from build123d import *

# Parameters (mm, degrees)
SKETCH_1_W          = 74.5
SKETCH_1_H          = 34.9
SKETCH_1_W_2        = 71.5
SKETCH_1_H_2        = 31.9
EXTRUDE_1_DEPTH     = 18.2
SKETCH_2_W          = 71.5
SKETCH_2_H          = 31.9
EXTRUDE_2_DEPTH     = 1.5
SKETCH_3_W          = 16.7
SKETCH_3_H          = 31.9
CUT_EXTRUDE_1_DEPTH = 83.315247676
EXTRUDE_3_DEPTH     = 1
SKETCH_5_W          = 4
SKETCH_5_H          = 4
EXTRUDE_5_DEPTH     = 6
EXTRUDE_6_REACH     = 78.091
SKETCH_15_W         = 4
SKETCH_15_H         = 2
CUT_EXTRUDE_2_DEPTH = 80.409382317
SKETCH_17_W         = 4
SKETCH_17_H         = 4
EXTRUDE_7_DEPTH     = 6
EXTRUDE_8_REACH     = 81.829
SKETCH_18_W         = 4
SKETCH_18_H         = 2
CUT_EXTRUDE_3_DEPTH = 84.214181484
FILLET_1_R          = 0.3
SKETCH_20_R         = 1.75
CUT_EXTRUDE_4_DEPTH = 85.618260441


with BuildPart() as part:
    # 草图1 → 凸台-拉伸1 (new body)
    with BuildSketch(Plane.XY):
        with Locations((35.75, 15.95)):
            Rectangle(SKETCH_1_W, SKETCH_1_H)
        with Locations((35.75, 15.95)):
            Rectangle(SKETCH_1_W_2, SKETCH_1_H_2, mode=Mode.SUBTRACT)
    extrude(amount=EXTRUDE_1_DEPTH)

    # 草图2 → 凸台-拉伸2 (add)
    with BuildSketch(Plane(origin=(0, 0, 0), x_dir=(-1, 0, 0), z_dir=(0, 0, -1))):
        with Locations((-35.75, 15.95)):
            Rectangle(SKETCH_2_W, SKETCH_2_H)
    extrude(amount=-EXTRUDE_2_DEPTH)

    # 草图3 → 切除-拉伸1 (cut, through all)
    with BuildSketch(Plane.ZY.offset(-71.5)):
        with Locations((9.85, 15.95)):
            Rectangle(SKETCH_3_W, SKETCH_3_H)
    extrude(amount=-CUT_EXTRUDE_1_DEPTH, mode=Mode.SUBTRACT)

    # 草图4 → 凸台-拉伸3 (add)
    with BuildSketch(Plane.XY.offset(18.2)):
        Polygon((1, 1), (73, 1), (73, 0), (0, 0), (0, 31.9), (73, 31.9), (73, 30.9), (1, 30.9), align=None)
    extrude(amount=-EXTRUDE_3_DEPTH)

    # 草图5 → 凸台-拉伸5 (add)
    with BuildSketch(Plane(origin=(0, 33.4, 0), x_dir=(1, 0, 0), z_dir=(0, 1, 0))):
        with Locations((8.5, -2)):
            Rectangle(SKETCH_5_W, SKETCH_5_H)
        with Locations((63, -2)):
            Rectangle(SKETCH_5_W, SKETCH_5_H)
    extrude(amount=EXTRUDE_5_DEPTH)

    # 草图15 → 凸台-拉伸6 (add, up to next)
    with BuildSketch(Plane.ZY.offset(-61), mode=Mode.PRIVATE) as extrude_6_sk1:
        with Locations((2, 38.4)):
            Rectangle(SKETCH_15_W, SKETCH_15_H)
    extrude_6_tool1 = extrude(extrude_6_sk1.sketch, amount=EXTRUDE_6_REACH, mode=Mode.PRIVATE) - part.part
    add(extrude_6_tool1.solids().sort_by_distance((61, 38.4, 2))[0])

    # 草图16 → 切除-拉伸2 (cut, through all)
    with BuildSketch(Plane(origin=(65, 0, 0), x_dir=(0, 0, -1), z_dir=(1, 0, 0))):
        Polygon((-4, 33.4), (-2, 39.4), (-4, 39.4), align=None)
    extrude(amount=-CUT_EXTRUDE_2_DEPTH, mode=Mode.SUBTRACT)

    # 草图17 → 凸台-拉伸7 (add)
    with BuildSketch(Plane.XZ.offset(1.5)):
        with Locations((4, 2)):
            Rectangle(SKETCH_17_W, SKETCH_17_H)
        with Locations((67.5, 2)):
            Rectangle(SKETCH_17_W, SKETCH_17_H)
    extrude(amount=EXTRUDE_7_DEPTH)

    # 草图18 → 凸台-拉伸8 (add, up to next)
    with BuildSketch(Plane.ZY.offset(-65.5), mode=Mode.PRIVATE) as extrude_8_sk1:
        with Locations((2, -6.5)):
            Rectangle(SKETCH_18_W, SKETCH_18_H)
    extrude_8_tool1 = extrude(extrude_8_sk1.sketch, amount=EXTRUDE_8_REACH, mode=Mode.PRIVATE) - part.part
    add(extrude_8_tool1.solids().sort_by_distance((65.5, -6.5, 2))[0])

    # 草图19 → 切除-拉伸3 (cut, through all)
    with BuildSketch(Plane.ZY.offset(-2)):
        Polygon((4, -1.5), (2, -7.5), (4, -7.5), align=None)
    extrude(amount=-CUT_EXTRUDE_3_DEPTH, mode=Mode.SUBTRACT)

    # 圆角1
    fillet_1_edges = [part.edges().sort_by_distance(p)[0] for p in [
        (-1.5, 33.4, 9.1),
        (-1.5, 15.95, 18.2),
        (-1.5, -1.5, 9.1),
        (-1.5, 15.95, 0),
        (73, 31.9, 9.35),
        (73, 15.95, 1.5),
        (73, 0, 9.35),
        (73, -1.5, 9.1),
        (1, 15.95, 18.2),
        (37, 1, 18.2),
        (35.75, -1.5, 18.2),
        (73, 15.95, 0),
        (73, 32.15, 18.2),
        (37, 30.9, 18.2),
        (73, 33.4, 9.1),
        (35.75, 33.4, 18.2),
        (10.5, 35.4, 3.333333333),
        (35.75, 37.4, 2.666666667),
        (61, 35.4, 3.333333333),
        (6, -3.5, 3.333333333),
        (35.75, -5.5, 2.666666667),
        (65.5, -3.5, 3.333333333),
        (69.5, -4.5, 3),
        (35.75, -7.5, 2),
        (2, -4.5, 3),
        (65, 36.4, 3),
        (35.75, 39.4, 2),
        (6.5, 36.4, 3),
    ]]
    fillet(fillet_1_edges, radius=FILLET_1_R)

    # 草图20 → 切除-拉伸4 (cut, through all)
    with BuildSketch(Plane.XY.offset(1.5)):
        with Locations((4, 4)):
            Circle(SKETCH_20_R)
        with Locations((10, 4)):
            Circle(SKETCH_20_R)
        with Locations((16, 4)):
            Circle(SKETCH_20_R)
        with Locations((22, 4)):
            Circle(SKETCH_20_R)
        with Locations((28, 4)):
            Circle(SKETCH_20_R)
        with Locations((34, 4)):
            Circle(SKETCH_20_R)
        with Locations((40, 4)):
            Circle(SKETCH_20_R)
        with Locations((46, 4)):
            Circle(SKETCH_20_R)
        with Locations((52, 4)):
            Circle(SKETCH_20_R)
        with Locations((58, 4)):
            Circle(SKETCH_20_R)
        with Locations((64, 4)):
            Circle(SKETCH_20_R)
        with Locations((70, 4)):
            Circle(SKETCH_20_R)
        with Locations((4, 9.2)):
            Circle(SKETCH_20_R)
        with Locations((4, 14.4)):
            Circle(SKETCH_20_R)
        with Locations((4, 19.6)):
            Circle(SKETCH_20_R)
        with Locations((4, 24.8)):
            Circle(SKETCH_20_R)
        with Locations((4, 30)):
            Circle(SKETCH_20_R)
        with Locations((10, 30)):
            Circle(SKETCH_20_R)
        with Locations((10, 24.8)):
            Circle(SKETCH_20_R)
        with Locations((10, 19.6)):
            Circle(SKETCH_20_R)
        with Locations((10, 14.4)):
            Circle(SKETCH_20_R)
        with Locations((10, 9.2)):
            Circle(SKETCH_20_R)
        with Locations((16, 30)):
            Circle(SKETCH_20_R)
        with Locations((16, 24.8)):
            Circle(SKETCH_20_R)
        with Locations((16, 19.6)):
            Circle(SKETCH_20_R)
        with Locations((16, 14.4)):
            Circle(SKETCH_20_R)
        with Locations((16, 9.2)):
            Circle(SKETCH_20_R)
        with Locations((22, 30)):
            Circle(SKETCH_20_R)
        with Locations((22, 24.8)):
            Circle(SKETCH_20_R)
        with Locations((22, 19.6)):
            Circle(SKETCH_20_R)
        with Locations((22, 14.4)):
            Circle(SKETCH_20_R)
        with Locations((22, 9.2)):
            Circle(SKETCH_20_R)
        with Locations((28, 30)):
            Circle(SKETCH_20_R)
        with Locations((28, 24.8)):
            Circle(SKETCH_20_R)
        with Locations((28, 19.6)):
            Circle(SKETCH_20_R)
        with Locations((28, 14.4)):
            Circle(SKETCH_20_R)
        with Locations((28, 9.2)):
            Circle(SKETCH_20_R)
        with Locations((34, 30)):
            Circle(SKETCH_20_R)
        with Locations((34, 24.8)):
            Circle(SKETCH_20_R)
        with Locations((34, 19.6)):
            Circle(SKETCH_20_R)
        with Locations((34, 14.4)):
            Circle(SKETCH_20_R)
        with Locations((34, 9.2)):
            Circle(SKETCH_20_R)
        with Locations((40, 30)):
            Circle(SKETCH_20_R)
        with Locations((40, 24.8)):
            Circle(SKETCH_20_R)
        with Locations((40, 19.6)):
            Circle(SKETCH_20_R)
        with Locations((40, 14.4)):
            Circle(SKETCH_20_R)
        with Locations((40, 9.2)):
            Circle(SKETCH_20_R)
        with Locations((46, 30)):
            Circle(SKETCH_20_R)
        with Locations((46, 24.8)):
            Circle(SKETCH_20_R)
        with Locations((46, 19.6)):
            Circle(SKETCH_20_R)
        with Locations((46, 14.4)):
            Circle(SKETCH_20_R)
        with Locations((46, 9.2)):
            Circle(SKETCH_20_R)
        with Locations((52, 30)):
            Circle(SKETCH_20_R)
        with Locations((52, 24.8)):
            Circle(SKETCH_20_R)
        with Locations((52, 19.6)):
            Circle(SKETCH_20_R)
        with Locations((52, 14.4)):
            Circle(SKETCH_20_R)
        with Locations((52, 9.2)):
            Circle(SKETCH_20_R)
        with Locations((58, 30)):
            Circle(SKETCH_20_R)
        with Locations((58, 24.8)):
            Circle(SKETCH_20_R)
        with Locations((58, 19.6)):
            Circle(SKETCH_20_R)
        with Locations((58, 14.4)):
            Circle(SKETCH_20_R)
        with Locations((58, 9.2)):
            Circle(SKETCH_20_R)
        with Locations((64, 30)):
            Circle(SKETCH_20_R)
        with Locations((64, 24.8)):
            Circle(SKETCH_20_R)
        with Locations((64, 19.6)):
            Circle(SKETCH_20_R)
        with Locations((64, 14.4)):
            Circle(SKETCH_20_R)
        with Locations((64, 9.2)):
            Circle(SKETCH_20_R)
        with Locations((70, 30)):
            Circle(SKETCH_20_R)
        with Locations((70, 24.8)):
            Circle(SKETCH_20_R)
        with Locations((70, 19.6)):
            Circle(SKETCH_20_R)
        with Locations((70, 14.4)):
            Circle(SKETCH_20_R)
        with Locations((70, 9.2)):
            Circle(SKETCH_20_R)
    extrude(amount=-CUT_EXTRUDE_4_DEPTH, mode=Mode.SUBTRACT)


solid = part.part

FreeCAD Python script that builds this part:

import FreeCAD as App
import Part
import Sketcher
from FreeCAD import Vector


def edges_at(feature, points):
    """Names of the edges that pass closest to the given points."""
    edges = feature.Shape.Edges
    near = lambda p: min(range(len(edges)), key=lambda i: edges[i].distToShape(Part.Vertex(*p))[0])
    return sorted({f"Edge{near(p) + 1}" for p in points})


def add_polygon(sketch, points):
    """Adds a closed chain of lines whose ends are joined by coincident constraints."""
    first, n = sketch.GeometryCount, len(points)
    for a, b in zip(points, points[1:] + points[:1]):
        sketch.addGeometry(Part.LineSegment(App.Vector(*a, 0), App.Vector(*b, 0)), False)
    for i in range(n):
        sketch.addConstraint(Sketcher.Constraint("Coincident", first + i, 2, first + (i + 1) % n, 1))

doc = App.newDocument("Part")
body = doc.addObject("PartDesign::Body", "Body")

# Sketch on XY plane
sketch1 = doc.addObject("Sketcher::SketchObject", "Sketch")
body.addObject(sketch1)
sketch1.AttachmentSupport = (doc.XY_Plane, [""])
sketch1.MapMode = "FlatFace"
add_polygon(sketch1, [(-2, 33), (-2, -2), (73, -2), (73, 33)])  # lines 0-3
add_polygon(sketch1, [(72, 0), (0, 0), (0, 32), (72, 32)])  # lines 4-7
sketch1.addConstraint(Sketcher.Constraint("Vertical", 0))
sketch1.addConstraint(Sketcher.Constraint("Horizontal", 1))
sketch1.addConstraint(Sketcher.Constraint("Vertical", 2))
sketch1.addConstraint(Sketcher.Constraint("Horizontal", 3))
sketch1.addConstraint(Sketcher.Constraint("Horizontal", 4))
sketch1.addConstraint(Sketcher.Constraint("Vertical", 5))
sketch1.addConstraint(Sketcher.Constraint("Horizontal", 6))
sketch1.addConstraint(Sketcher.Constraint("Vertical", 7))
sketch1.addConstraint(Sketcher.Constraint("Coincident", 4, 2, -1, 1))
sketch1.addConstraint(Sketcher.Constraint("DistanceX", 1, 1, 1, 2, 74.5))
sketch1.addConstraint(Sketcher.Constraint("DistanceX", 4, 2, 4, 1, 71.5))
sketch1.addConstraint(Sketcher.Constraint("DistanceY", 0, 2, 0, 1, 34.9))
sketch1.addConstraint(Sketcher.Constraint("DistanceY", 5, 1, 5, 2, 31.9))
sketch1.addConstraint(Sketcher.Constraint("DistanceX", -1, 1, 1, 2, 73.0))
sketch1.addConstraint(Sketcher.Constraint("DistanceY", 0, 2, -1, 1, 1.5))
pad1 = doc.addObject("PartDesign::Pad", "Pad")
body.addObject(pad1)
pad1.Profile = sketch1
pad1.Length = 18.2

# Sketch on XY plane
sketch2 = doc.addObject("Sketcher::SketchObject", "Sketch001")
body.addObject(sketch2)
sketch2.AttachmentSupport = (doc.XY_Plane, [""])
sketch2.MapMode = "FlatFace"
add_polygon(sketch2, [(72, 32), (72, 0), (0, 0), (0, 32)])  # lines 0-3
sketch2.addConstraint(Sketcher.Constraint("Vertical", 0))
sketch2.addConstraint(Sketcher.Constraint("Horizontal", 1))
sketch2.addConstraint(Sketcher.Constraint("Vertical", 2))
sketch2.addConstraint(Sketcher.Constraint("Horizontal", 3))
sketch2.addConstraint(Sketcher.Constraint("Coincident", 1, 2, -1, 1))
sketch2.addConstraint(Sketcher.Constraint("DistanceX", 1, 2, 1, 1, 71.5))
sketch2.addConstraint(Sketcher.Constraint("DistanceY", 0, 2, 0, 1, 31.9))
pad2 = doc.addObject("PartDesign::Pad", "Pad001")
body.addObject(pad2)
pad2.Profile = sketch2
pad2.Length = 1.5

# Sketch on YZ plane
sketch3 = doc.addObject("Sketcher::SketchObject", "Sketch002")
body.addObject(sketch3)
sketch3.AttachmentSupport = (doc.YZ_Plane, [""])
sketch3.MapMode = "FlatFace"
sketch3.AttachmentOffset = App.Placement(Vector(0, 0, 71.5), App.Rotation())
add_polygon(sketch3, [(32, 2), (0, 2), (0, 18), (32, 18)])  # lines 0-3
sketch3.addConstraint(Sketcher.Constraint("Horizontal", 0))
sketch3.addConstraint(Sketcher.Constraint("Vertical", 1))
sketch3.addConstraint(Sketcher.Constraint("Horizontal", 2))
sketch3.addConstraint(Sketcher.Constraint("Vertical", 3))
sketch3.addConstraint(Sketcher.Constraint("PointOnObject", 0, 2, -2))
sketch3.addConstraint(Sketcher.Constraint("DistanceX", 0, 2, 0, 1, 31.9))
sketch3.addConstraint(Sketcher.Constraint("DistanceY", 1, 1, 1, 2, 16.7))
sketch3.addConstraint(Sketcher.Constraint("DistanceY", -1, 1, 0, 2, 1.5))
pocket1 = doc.addObject("PartDesign::Pocket", "Pocket")
body.addObject(pocket1)
pocket1.Profile = sketch3
pocket1.Type = "ThroughAll"
pocket1.Reversed = True

# Sketch on XY plane
sketch4 = doc.addObject("Sketcher::SketchObject", "Sketch003")
body.addObject(sketch4)
sketch4.AttachmentSupport = (doc.XY_Plane, [""])
sketch4.MapMode = "FlatFace"
sketch4.AttachmentOffset = App.Placement(Vector(0, 0, 18.2), App.Rotation())
add_polygon(sketch4, [(73, 1), (1, 1), (1, 30.9), (73, 30.9), (73, 31.9), (0, 31.9), (0, 0), (73, 0)])  # lines 0-7
sketch4.addConstraint(Sketcher.Constraint("Horizontal", 0))
sketch4.addConstraint(Sketcher.Constraint("Vertical", 1))
sketch4.addConstraint(Sketcher.Constraint("Horizontal", 2))
sketch4.addConstraint(Sketcher.Constraint("Vertical", 3))
sketch4.addConstraint(Sketcher.Constraint("Horizontal", 4))
sketch4.addConstraint(Sketcher.Constraint("Vertical", 5))
sketch4.addConstraint(Sketcher.Constraint("Horizontal", 6))
sketch4.addConstraint(Sketcher.Constraint("Vertical", 7))
sketch4.addConstraint(Sketcher.Constraint("Coincident", 5, 2, -1, 1))
sketch4.addConstraint(Sketcher.Constraint("Vertical", 3, 2, 6, 2))
sketch4.addConstraint(Sketcher.Constraint("Equal", 3, 7))
sketch4.addConstraint(Sketcher.Constraint("DistanceX", 0, 2, 0, 1, 72.0))
sketch4.addConstraint(Sketcher.Constraint("DistanceX", 4, 2, 4, 1, 73.0))
sketch4.addConstraint(Sketcher.Constraint("DistanceY", 3, 1, 3, 2, 1.0))
sketch4.addConstraint(Sketcher.Constraint("DistanceY", 1, 1, 1, 2, 29.9))
pad3 = doc.addObject("PartDesign::Pad", "Pad002")
body.addObject(pad3)
pad3.Profile = sketch4
pad3.Length = 1
pad3.Reversed = True

# Sketch on XZ plane
sketch5 = doc.addObject("Sketcher::SketchObject", "Sketch004")
body.addObject(sketch5)
sketch5.AttachmentSupport = (doc.XZ_Plane, [""])
sketch5.MapMode = "FlatFace"
sketch5.AttachmentOffset = App.Placement(Vector(0, 0, -33.4), App.Rotation())
add_polygon(sketch5, [(6.5, 0), (6.5, 4), (10.5, 4), (10.5, 0)])  # lines 0-3
add_polygon(sketch5, [(61, 0), (61, 4), (65, 4), (65, 0)])  # lines 4-7
sketch5.addConstraint(Sketcher.Constraint("Vertical", 0))
sketch5.addConstraint(Sketcher.Constraint("Horizontal", 1))
sketch5.addConstraint(Sketcher.Constraint("Vertical", 2))
sketch5.addConstraint(Sketcher.Constraint("Horizontal", 3))
sketch5.addConstraint(Sketcher.Constraint("Vertical", 4))
sketch5.addConstraint(Sketcher.Constraint("Horizontal", 5))
sketch5.addConstraint(Sketcher.Constraint("Vertical", 6))
sketch5.addConstraint(Sketcher.Constraint("Horizontal", 7))
sketch5.addConstraint(Sketcher.Constraint("PointOnObject", 2, 2, -1))
sketch5.addConstraint(Sketcher.Constraint("PointOnObject", 6, 2, -1))
sketch5.addConstraint(Sketcher.Constraint("Horizontal", 1, 2, 4, 2))
sketch5.addConstraint(Sketcher.Constraint("Equal", 3, 5))
sketch5.addConstraint(Sketcher.Constraint("Equal", 7, 0))
sketch5.addConstraint(Sketcher.Constraint("DistanceX", 1, 1, 1, 2, 4.0))
sketch5.addConstraint(Sketcher.Constraint("DistanceX", -1, 1, 4, 2, 61.0))
sketch5.addConstraint(Sketcher.Constraint("DistanceX", -1, 1, 0, 2, 6.5))
pad4 = doc.addObject("PartDesign::Pad", "Pad003")
body.addObject(pad4)
pad4.Profile = sketch5
pad4.Length = 6
pad4.Reversed = True

# Sketch on YZ plane
sketch6 = doc.addObject("Sketcher::SketchObject", "Sketch005")
body.addObject(sketch6)
sketch6.AttachmentSupport = (doc.YZ_Plane, [""])
sketch6.MapMode = "FlatFace"
sketch6.AttachmentOffset = App.Placement(Vector(0, 0, 61), App.Rotation())
add_polygon(sketch6, [(39.4, 0), (37.4, 0), (37.4, 4), (39.4, 4)])  # lines 0-3
sketch6.addConstraint(Sketcher.Constraint("Horizontal", 0))
sketch6.addConstraint(Sketcher.Constraint("Vertical", 1))
sketch6.addConstraint(Sketcher.Constraint("Horizontal", 2))
sketch6.addConstraint(Sketcher.Constraint("Vertical", 3))
sketch6.addConstraint(Sketcher.Constraint("PointOnObject", 0, 2, -1))
sketch6.addConstraint(Sketcher.Constraint("DistanceX", 0, 2, 0, 1, 2.0))
sketch6.addConstraint(Sketcher.Constraint("DistanceY", 1, 1, 1, 2, 4.0))
sketch6.addConstraint(Sketcher.Constraint("DistanceX", -1, 1, 0, 2, 37.4))
pad5 = doc.addObject("PartDesign::Pad", "Pad004")
body.addObject(pad5)
pad5.Profile = sketch6
pad5.Type = "UpToFirst"
pad5.Reversed = True

# Sketch on YZ plane
sketch7 = doc.addObject("Sketcher::SketchObject", "Sketch006")
body.addObject(sketch7)
sketch7.AttachmentSupport = (doc.YZ_Plane, [""])
sketch7.MapMode = "FlatFace"
sketch7.AttachmentOffset = App.Placement(Vector(0, 0, 65), App.Rotation())
add_polygon(sketch7, [(33.4, 4), (39.4, 2), (39.4, 4)])  # lines 0-2
sketch7.addConstraint(Sketcher.Constraint("Vertical", 1))
sketch7.addConstraint(Sketcher.Constraint("Horizontal", 2))
sketch7.addConstraint(Sketcher.Constraint("DistanceX", 2, 2, 2, 1, 6.0))
sketch7.addConstraint(Sketcher.Constraint("DistanceY", 1, 1, 1, 2, 2.0))
sketch7.addConstraint(Sketcher.Constraint("DistanceY", -1, 1, 0, 2, 2.0))
sketch7.addConstraint(Sketcher.Constraint("DistanceX", -1, 1, 0, 2, 39.4))
pocket2 = doc.addObject("PartDesign::Pocket", "Pocket001")
body.addObject(pocket2)
pocket2.Profile = sketch7
pocket2.Type = "ThroughAll"

# Sketch on XZ plane
sketch8 = doc.addObject("Sketcher::SketchObject", "Sketch007")
body.addObject(sketch8)
sketch8.AttachmentSupport = (doc.XZ_Plane, [""])
sketch8.MapMode = "FlatFace"
sketch8.AttachmentOffset = App.Placement(Vector(0, 0, 1.5), App.Rotation())
add_polygon(sketch8, [(2, 4), (2, 0), (6, 0), (6, 4)])  # lines 0-3
add_polygon(sketch8, [(65.5, 4), (65.5, 0), (69.5, 0), (69.5, 4)])  # lines 4-7
sketch8.addConstraint(Sketcher.Constraint("Vertical", 0))
sketch8.addConstraint(Sketcher.Constraint("Horizontal", 1))
sketch8.addConstraint(Sketcher.Constraint("Vertical", 2))
sketch8.addConstraint(Sketcher.Constraint("Horizontal", 3))
sketch8.addConstraint(Sketcher.Constraint("Vertical", 4))
sketch8.addConstraint(Sketcher.Constraint("Horizontal", 5))
sketch8.addConstraint(Sketcher.Constraint("Vertical", 6))
sketch8.addConstraint(Sketcher.Constraint("Horizontal", 7))
sketch8.addConstraint(Sketcher.Constraint("PointOnObject", 0, 2, -1))
sketch8.addConstraint(Sketcher.Constraint("PointOnObject", 4, 2, -1))
sketch8.addConstraint(Sketcher.Constraint("Horizontal", 3, 2, 6, 2))
sketch8.addConstraint(Sketcher.Constraint("Equal", 3, 5))
sketch8.addConstraint(Sketcher.Constraint("Equal", 7, 0))
sketch8.addConstraint(Sketcher.Constraint("DistanceX", 1, 1, 1, 2, 4.0))
sketch8.addConstraint(Sketcher.Constraint("DistanceX", -1, 1, 0, 2, 2.0))
sketch8.addConstraint(Sketcher.Constraint("DistanceX", -1, 1, 4, 2, 65.5))
pad6 = doc.addObject("PartDesign::Pad", "Pad005")
body.addObject(pad6)
pad6.Profile = sketch8
pad6.Length = 6

# Sketch on YZ plane
sketch9 = doc.addObject("Sketcher::SketchObject", "Sketch008")
body.addObject(sketch9)
sketch9.AttachmentSupport = (doc.YZ_Plane, [""])
sketch9.MapMode = "FlatFace"
sketch9.AttachmentOffset = App.Placement(Vector(0, 0, 65.5), App.Rotation())
add_polygon(sketch9, [(-5.5, 0), (-7.5, 0), (-7.5, 4), (-5.5, 4)])  # lines 0-3
sketch9.addConstraint(Sketcher.Constraint("Horizontal", 0))
sketch9.addConstraint(Sketcher.Constraint("Vertical", 1))
sketch9.addConstraint(Sketcher.Constraint("Horizontal", 2))
sketch9.addConstraint(Sketcher.Constraint("Vertical", 3))
sketch9.addConstraint(Sketcher.Constraint("PointOnObject", 0, 2, -1))
sketch9.addConstraint(Sketcher.Constraint("DistanceX", 0, 2, 0, 1, 2.0))
sketch9.addConstraint(Sketcher.Constraint("DistanceY", 1, 1, 1, 2, 4.0))
sketch9.addConstraint(Sketcher.Constraint("DistanceX", 0, 2, -1, 1, 7.5))
pad7 = doc.addObject("PartDesign::Pad", "Pad006")
body.addObject(pad7)
pad7.Profile = sketch9
pad7.Type = "UpToFirst"
pad7.Reversed = True

# Sketch on YZ plane
sketch10 = doc.addObject("Sketcher::SketchObject", "Sketch009")
body.addObject(sketch10)
sketch10.AttachmentSupport = (doc.YZ_Plane, [""])
sketch10.MapMode = "FlatFace"
sketch10.AttachmentOffset = App.Placement(Vector(0, 0, 2), App.Rotation())
add_polygon(sketch10, [(-1.5, 4), (-7.5, 2), (-7.5, 4)])  # lines 0-2
sketch10.addConstraint(Sketcher.Constraint("Vertical", 1))
sketch10.addConstraint(Sketcher.Constraint("Horizontal", 2))
sketch10.addConstraint(Sketcher.Constraint("DistanceX", 2, 1, 2, 2, 6.0))
sketch10.addConstraint(Sketcher.Constraint("DistanceY", 1, 1, 1, 2, 2.0))
sketch10.addConstraint(Sketcher.Constraint("DistanceY", -1, 1, 0, 2, 2.0))
sketch10.addConstraint(Sketcher.Constraint("DistanceX", 0, 2, -1, 1, 7.5))
pocket3 = doc.addObject("PartDesign::Pocket", "Pocket002")
body.addObject(pocket3)
pocket3.Profile = sketch10
pocket3.Type = "ThroughAll"
pocket3.Reversed = True
doc.recompute()

fillet = doc.addObject("PartDesign::Fillet", "Fillet")
body.addObject(fillet)
fillet.Base = (pocket3, edges_at(pocket3, [
    (-1.5, 33.4, 9.1),
    (-1.5, 15.95, 18.2),
    (-1.5, -1.5, 9.1),
    (-1.5, 15.95, 0),
    (73, 31.9, 9.35),
    (73, 15.95, 1.5),
    (73, 0, 9.35),
    (73, -1.5, 9.1),
    (1, 15.95, 18.2),
    (37, 1, 18.2),
    (35.75, -1.5, 18.2),
    (73, 15.95, 0),
    (73, 32.15, 18.2),
    (37, 30.9, 18.2),
    (73, 33.4, 9.1),
    (35.75, 33.4, 18.2),
    (10.5, 35.4, 3.333),
    (35.75, 37.4, 2.667),
    (61, 35.4, 3.333),
    (6, -3.5, 3.333),
    (35.75, -5.5, 2.667),
    (65.5, -3.5, 3.333),
    (69.5, -4.5, 3),
    (35.75, -7.5, 2),
    (2, -4.5, 3),
    (65, 36.4, 3),
    (35.75, 39.4, 2),
    (6.5, 36.4, 3),
]))
fillet.Radius = 0.3

# Sketch on XY plane
sketch11 = doc.addObject("Sketcher::SketchObject", "Sketch010")
body.addObject(sketch11)
sketch11.AttachmentSupport = (doc.XY_Plane, [""])
sketch11.MapMode = "FlatFace"
sketch11.AttachmentOffset = App.Placement(Vector(0, 0, 1.5), App.Rotation())
sketch11.addGeometry(Part.Circle(Vector(4, 4, 0), Vector(0, 0, 1), 1.8), False)
sketch11.addGeometry(Part.Circle(Vector(10, 4, 0), Vector(0, 0, 1), 1.8), False)
sketch11.addGeometry(Part.Circle(Vector(16, 4, 0), Vector(0, 0, 1), 1.8), False)
sketch11.addGeometry(Part.Circle(Vector(22, 4, 0), Vector(0, 0, 1), 1.8), False)
sketch11.addGeometry(Part.Circle(Vector(28, 4, 0), Vector(0, 0, 1), 1.8), False)
sketch11.addGeometry(Part.Circle(Vector(34, 4, 0), Vector(0, 0, 1), 1.8), False)
sketch11.addGeometry(Part.Circle(Vector(40, 4, 0), Vector(0, 0, 1), 1.8), False)
sketch11.addGeometry(Part.Circle(Vector(46, 4, 0), Vector(0, 0, 1), 1.8), False)
sketch11.addGeometry(Part.Circle(Vector(52, 4, 0), Vector(0, 0, 1), 1.8), False)
sketch11.addGeometry(Part.Circle(Vector(58, 4, 0), Vector(0, 0, 1), 1.8), False)
sketch11.addGeometry(Part.Circle(Vector(64, 4, 0), Vector(0, 0, 1), 1.8), False)
sketch11.addGeometry(Part.Circle(Vector(70, 4, 0), Vector(0, 0, 1), 1.8), False)
sketch11.addGeometry(Part.Circle(Vector(4, 9.2, 0), Vector(0, 0, 1), 1.8), False)
sketch11.addGeometry(Part.Circle(Vector(4, 14.4, 0), Vector(0, 0, 1), 1.8), False)
sketch11.addGeometry(Part.Circle(Vector(4, 19.6, 0), Vector(0, 0, 1), 1.8), False)
sketch11.addGeometry(Part.Circle(Vector(4, 24.8, 0), Vector(0, 0, 1), 1.8), False)
sketch11.addGeometry(Part.Circle(Vector(4, 30, 0), Vector(0, 0, 1), 1.8), False)
sketch11.addGeometry(Part.Circle(Vector(10, 30, 0), Vector(0, 0, 1), 1.8), False)
sketch11.addGeometry(Part.Circle(Vector(10, 24.8, 0), Vector(0, 0, 1), 1.8), False)
sketch11.addGeometry(Part.Circle(Vector(10, 19.6, 0), Vector(0, 0, 1), 1.8), False)
sketch11.addGeometry(Part.Circle(Vector(10, 14.4, 0), Vector(0, 0, 1), 1.8), False)
sketch11.addGeometry(Part.Circle(Vector(10, 9.2, 0), Vector(0, 0, 1), 1.8), False)
sketch11.addGeometry(Part.Circle(Vector(16, 30, 0), Vector(0, 0, 1), 1.8), False)
sketch11.addGeometry(Part.Circle(Vector(16, 24.8, 0), Vector(0, 0, 1), 1.8), False)
sketch11.addGeometry(Part.Circle(Vector(16, 19.6, 0), Vector(0, 0, 1), 1.8), False)
sketch11.addGeometry(Part.Circle(Vector(16, 14.4, 0), Vector(0, 0, 1), 1.8), False)
sketch11.addGeometry(Part.Circle(Vector(16, 9.2, 0), Vector(0, 0, 1), 1.8), False)
sketch11.addGeometry(Part.Circle(Vector(22, 30, 0), Vector(0, 0, 1), 1.8), False)
sketch11.addGeometry(Part.Circle(Vector(22, 24.8, 0), Vector(0, 0, 1), 1.8), False)
sketch11.addGeometry(Part.Circle(Vector(22, 19.6, 0), Vector(0, 0, 1), 1.8), False)
sketch11.addGeometry(Part.Circle(Vector(22, 14.4, 0), Vector(0, 0, 1), 1.8), False)
sketch11.addGeometry(Part.Circle(Vector(22, 9.2, 0), Vector(0, 0, 1), 1.8), False)
sketch11.addGeometry(Part.Circle(Vector(28, 30, 0), Vector(0, 0, 1), 1.8), False)
sketch11.addGeometry(Part.Circle(Vector(28, 24.8, 0), Vector(0, 0, 1), 1.8), False)
sketch11.addGeometry(Part.Circle(Vector(28, 19.6, 0), Vector(0, 0, 1), 1.8), False)
sketch11.addGeometry(Part.Circle(Vector(28, 14.4, 0), Vector(0, 0, 1), 1.8), False)
sketch11.addGeometry(Part.Circle(Vector(28, 9.2, 0), Vector(0, 0, 1), 1.8), False)
sketch11.addGeometry(Part.Circle(Vector(34, 30, 0), Vector(0, 0, 1), 1.8), False)
sketch11.addGeometry(Part.Circle(Vector(34, 24.8, 0), Vector(0, 0, 1), 1.8), False)
sketch11.addGeometry(Part.Circle(Vector(34, 19.6, 0), Vector(0, 0, 1), 1.8), False)
sketch11.addGeometry(Part.Circle(Vector(34, 14.4, 0), Vector(0, 0, 1), 1.8), False)
sketch11.addGeometry(Part.Circle(Vector(34, 9.2, 0), Vector(0, 0, 1), 1.8), False)
sketch11.addGeometry(Part.Circle(Vector(40, 30, 0), Vector(0, 0, 1), 1.8), False)
sketch11.addGeometry(Part.Circle(Vector(40, 24.8, 0), Vector(0, 0, 1), 1.8), False)
sketch11.addGeometry(Part.Circle(Vector(40, 19.6, 0), Vector(0, 0, 1), 1.8), False)
sketch11.addGeometry(Part.Circle(Vector(40, 14.4, 0), Vector(0, 0, 1), 1.8), False)
sketch11.addGeometry(Part.Circle(Vector(40, 9.2, 0), Vector(0, 0, 1), 1.8), False)
sketch11.addGeometry(Part.Circle(Vector(46, 30, 0), Vector(0, 0, 1), 1.8), False)
sketch11.addGeometry(Part.Circle(Vector(46, 24.8, 0), Vector(0, 0, 1), 1.8), False)
sketch11.addGeometry(Part.Circle(Vector(46, 19.6, 0), Vector(0, 0, 1), 1.8), False)
sketch11.addGeometry(Part.Circle(Vector(46, 14.4, 0), Vector(0, 0, 1), 1.8), False)
sketch11.addGeometry(Part.Circle(Vector(46, 9.2, 0), Vector(0, 0, 1), 1.8), False)
sketch11.addGeometry(Part.Circle(Vector(52, 30, 0), Vector(0, 0, 1), 1.8), False)
sketch11.addGeometry(Part.Circle(Vector(52, 24.8, 0), Vector(0, 0, 1), 1.8), False)
sketch11.addGeometry(Part.Circle(Vector(52, 19.6, 0), Vector(0, 0, 1), 1.8), False)
sketch11.addGeometry(Part.Circle(Vector(52, 14.4, 0), Vector(0, 0, 1), 1.8), False)
sketch11.addGeometry(Part.Circle(Vector(52, 9.2, 0), Vector(0, 0, 1), 1.8), False)
sketch11.addGeometry(Part.Circle(Vector(58, 30, 0), Vector(0, 0, 1), 1.8), False)
sketch11.addGeometry(Part.Circle(Vector(58, 24.8, 0), Vector(0, 0, 1), 1.8), False)
sketch11.addGeometry(Part.Circle(Vector(58, 19.6, 0), Vector(0, 0, 1), 1.8), False)
sketch11.addGeometry(Part.Circle(Vector(58, 14.4, 0), Vector(0, 0, 1), 1.8), False)
sketch11.addGeometry(Part.Circle(Vector(58, 9.2, 0), Vector(0, 0, 1), 1.8), False)
sketch11.addGeometry(Part.Circle(Vector(64, 30, 0), Vector(0, 0, 1), 1.8), False)
sketch11.addGeometry(Part.Circle(Vector(64, 24.8, 0), Vector(0, 0, 1), 1.8), False)
sketch11.addGeometry(Part.Circle(Vector(64, 19.6, 0), Vector(0, 0, 1), 1.8), False)
sketch11.addGeometry(Part.Circle(Vector(64, 14.4, 0), Vector(0, 0, 1), 1.8), False)
sketch11.addGeometry(Part.Circle(Vector(64, 9.2, 0), Vector(0, 0, 1), 1.8), False)
sketch11.addGeometry(Part.Circle(Vector(70, 30, 0), Vector(0, 0, 1), 1.8), False)
sketch11.addGeometry(Part.Circle(Vector(70, 24.8, 0), Vector(0, 0, 1), 1.8), False)
sketch11.addGeometry(Part.Circle(Vector(70, 19.6, 0), Vector(0, 0, 1), 1.8), False)
sketch11.addGeometry(Part.Circle(Vector(70, 14.4, 0), Vector(0, 0, 1), 1.8), False)
sketch11.addGeometry(Part.Circle(Vector(70, 9.2, 0), Vector(0, 0, 1), 1.8), False)
sketch11.addConstraint(Sketcher.Constraint("Equal", 0, 1))
sketch11.addConstraint(Sketcher.Constraint("Equal", 1, 2))
sketch11.addConstraint(Sketcher.Constraint("Equal", 2, 3))
sketch11.addConstraint(Sketcher.Constraint("Equal", 3, 4))
sketch11.addConstraint(Sketcher.Constraint("Equal", 4, 5))
sketch11.addConstraint(Sketcher.Constraint("Equal", 5, 6))
sketch11.addConstraint(Sketcher.Constraint("Equal", 6, 7))
sketch11.addConstraint(Sketcher.Constraint("Equal", 7, 8))
sketch11.addConstraint(Sketcher.Constraint("Equal", 8, 9))
sketch11.addConstraint(Sketcher.Constraint("Equal", 9, 10))
sketch11.addConstraint(Sketcher.Constraint("Equal", 10, 11))
sketch11.addConstraint(Sketcher.Constraint("Equal", 11, 12))
sketch11.addConstraint(Sketcher.Constraint("Equal", 12, 13))
sketch11.addConstraint(Sketcher.Constraint("Equal", 13, 14))
sketch11.addConstraint(Sketcher.Constraint("Equal", 14, 15))
sketch11.addConstraint(Sketcher.Constraint("Equal", 15, 16))
sketch11.addConstraint(Sketcher.Constraint("Equal", 16, 17))
sketch11.addConstraint(Sketcher.Constraint("Equal", 17, 18))
sketch11.addConstraint(Sketcher.Constraint("Equal", 18, 19))
sketch11.addConstraint(Sketcher.Constraint("Equal", 19, 20))
sketch11.addConstraint(Sketcher.Constraint("Equal", 20, 21))
sketch11.addConstraint(Sketcher.Constraint("Equal", 21, 22))
sketch11.addConstraint(Sketcher.Constraint("Equal", 22, 23))
sketch11.addConstraint(Sketcher.Constraint("Equal", 23, 24))
sketch11.addConstraint(Sketcher.Constraint("Equal", 24, 25))
sketch11.addConstraint(Sketcher.Constraint("Equal", 25, 26))
sketch11.addConstraint(Sketcher.Constraint("Equal", 26, 27))
sketch11.addConstraint(Sketcher.Constraint("Equal", 27, 28))
sketch11.addConstraint(Sketcher.Constraint("Equal", 28, 29))
sketch11.addConstraint(Sketcher.Constraint("Equal", 29, 30))
sketch11.addConstraint(Sketcher.Constraint("Equal", 30, 31))
sketch11.addConstraint(Sketcher.Constraint("Equal", 31, 32))
sketch11.addConstraint(Sketcher.Constraint("Equal", 32, 33))
sketch11.addConstraint(Sketcher.Constraint("Equal", 33, 34))
sketch11.addConstraint(Sketcher.Constraint("Equal", 34, 35))
sketch11.addConstraint(Sketcher.Constraint("Equal", 35, 36))
sketch11.addConstraint(Sketcher.Constraint("Equal", 36, 37))
sketch11.addConstraint(Sketcher.Constraint("Equal", 37, 38))
sketch11.addConstraint(Sketcher.Constraint("Equal", 38, 39))
sketch11.addConstraint(Sketcher.Constraint("Equal", 39, 40))
sketch11.addConstraint(Sketcher.Constraint("Equal", 40, 41))
sketch11.addConstraint(Sketcher.Constraint("Equal", 41, 42))
sketch11.addConstraint(Sketcher.Constraint("Equal", 42, 43))
sketch11.addConstraint(Sketcher.Constraint("Equal", 43, 44))
sketch11.addConstraint(Sketcher.Constraint("Equal", 44, 45))
sketch11.addConstraint(Sketcher.Constraint("Equal", 45, 46))
sketch11.addConstraint(Sketcher.Constraint("Equal", 46, 47))
sketch11.addConstraint(Sketcher.Constraint("Equal", 47, 48))
sketch11.addConstraint(Sketcher.Constraint("Equal", 48, 49))
sketch11.addConstraint(Sketcher.Constraint("Equal", 49, 50))
sketch11.addConstraint(Sketcher.Constraint("Equal", 50, 51))
sketch11.addConstraint(Sketcher.Constraint("Equal", 51, 52))
sketch11.addConstraint(Sketcher.Constraint("Equal", 52, 53))
sketch11.addConstraint(Sketcher.Constraint("Equal", 53, 54))
sketch11.addConstraint(Sketcher.Constraint("Equal", 54, 55))
sketch11.addConstraint(Sketcher.Constraint("Equal", 55, 56))
sketch11.addConstraint(Sketcher.Constraint("Equal", 56, 57))
sketch11.addConstraint(Sketcher.Constraint("Equal", 57, 58))
sketch11.addConstraint(Sketcher.Constraint("Equal", 58, 59))
sketch11.addConstraint(Sketcher.Constraint("Equal", 59, 60))
sketch11.addConstraint(Sketcher.Constraint("Equal", 60, 61))
sketch11.addConstraint(Sketcher.Constraint("Equal", 61, 62))
sketch11.addConstraint(Sketcher.Constraint("Equal", 62, 63))
sketch11.addConstraint(Sketcher.Constraint("Equal", 63, 64))
sketch11.addConstraint(Sketcher.Constraint("Equal", 64, 65))
sketch11.addConstraint(Sketcher.Constraint("Equal", 65, 66))
sketch11.addConstraint(Sketcher.Constraint("Equal", 66, 67))
sketch11.addConstraint(Sketcher.Constraint("Equal", 67, 68))
sketch11.addConstraint(Sketcher.Constraint("Equal", 68, 69))
sketch11.addConstraint(Sketcher.Constraint("Equal", 69, 70))
sketch11.addConstraint(Sketcher.Constraint("Equal", 70, 71))
sketch11.addConstraint(Sketcher.Constraint("Horizontal", 0, 3, 1, 3))
sketch11.addConstraint(Sketcher.Constraint("Horizontal", 1, 3, 2, 3))
sketch11.addConstraint(Sketcher.Constraint("Horizontal", 2, 3, 3, 3))
sketch11.addConstraint(Sketcher.Constraint("Horizontal", 3, 3, 4, 3))
sketch11.addConstraint(Sketcher.Constraint("Horizontal", 4, 3, 5, 3))
sketch11.addConstraint(Sketcher.Constraint("Horizontal", 5, 3, 6, 3))
sketch11.addConstraint(Sketcher.Constraint("Horizontal", 6, 3, 7, 3))
sketch11.addConstraint(Sketcher.Constraint("Horizontal", 7, 3, 8, 3))
sketch11.addConstraint(Sketcher.Constraint("Horizontal", 8, 3, 9, 3))
sketch11.addConstraint(Sketcher.Constraint("Horizontal", 9, 3, 10, 3))
sketch11.addConstraint(Sketcher.Constraint("Horizontal", 10, 3, 11, 3))
sketch11.addConstraint(Sketcher.Constraint("Horizontal", 16, 3, 17, 3))
sketch11.addConstraint(Sketcher.Constraint("Horizontal", 15, 3, 18, 3))
sketch11.addConstraint(Sketcher.Constraint("Horizontal", 14, 3, 19, 3))
sketch11.addConstraint(Sketcher.Constraint("Horizontal", 13, 3, 20, 3))
sketch11.addConstraint(Sketcher.Constraint("Horizontal", 12, 3, 21, 3))
sketch11.addConstraint(Sketcher.Constraint("Horizontal", 17, 3, 22, 3))
sketch11.addConstraint(Sketcher.Constraint("Horizontal", 18, 3, 23, 3))
sketch11.addConstraint(Sketcher.Constraint("Horizontal", 19, 3, 24, 3))
sketch11.addConstraint(Sketcher.Constraint("Horizontal", 20, 3, 25, 3))
sketch11.addConstraint(Sketcher.Constraint("Horizontal", 21, 3, 26, 3))
sketch11.addConstraint(Sketcher.Constraint("Horizontal", 22, 3, 27, 3))
sketch11.addConstraint(Sketcher.Constraint("Horizontal", 23, 3, 28, 3))
sketch11.addConstraint(Sketcher.Constraint("Horizontal", 24, 3, 29, 3))
sketch11.addConstraint(Sketcher.Constraint("Horizontal", 25, 3, 30, 3))
sketch11.addConstraint(Sketcher.Constraint("Horizontal", 26, 3, 31, 3))
sketch11.addConstraint(Sketcher.Constraint("Horizontal", 27, 3, 32, 3))
sketch11.addConstraint(Sketcher.Constraint("Horizontal", 28, 3, 33, 3))
sketch11.addConstraint(Sketcher.Constraint("Horizontal", 29, 3, 34, 3))
sketch11.addConstraint(Sketcher.Constraint("Horizontal", 30, 3, 35, 3))
sketch11.addConstraint(Sketcher.Constraint("Horizontal", 31, 3, 36, 3))
sketch11.addConstraint(Sketcher.Constraint("Horizontal", 32, 3, 37, 3))
sketch11.addConstraint(Sketcher.Constraint("Horizontal", 33, 3, 38, 3))
sketch11.addConstraint(Sketcher.Constraint("Horizontal", 34, 3, 39, 3))
sketch11.addConstraint(Sketcher.Constraint("Horizontal", 35, 3, 40, 3))
sketch11.addConstraint(Sketcher.Constraint("Horizontal", 36, 3, 41, 3))
sketch11.addConstraint(Sketcher.Constraint("Horizontal", 37, 3, 42, 3))
sketch11.addConstraint(Sketcher.Constraint("Horizontal", 38, 3, 43, 3))
sketch11.addConstraint(Sketcher.Constraint("Horizontal", 39, 3, 44, 3))
sketch11.addConstraint(Sketcher.Constraint("Horizontal", 40, 3, 45, 3))
sketch11.addConstraint(Sketcher.Constraint("Horizontal", 41, 3, 46, 3))
sketch11.addConstraint(Sketcher.Constraint("Horizontal", 42, 3, 47, 3))
sketch11.addConstraint(Sketcher.Constraint("Horizontal", 43, 3, 48, 3))
sketch11.addConstraint(Sketcher.Constraint("Horizontal", 44, 3, 49, 3))
sketch11.addConstraint(Sketcher.Constraint("Horizontal", 45, 3, 50, 3))
sketch11.addConstraint(Sketcher.Constraint("Horizontal", 46, 3, 51, 3))
sketch11.addConstraint(Sketcher.Constraint("Horizontal", 47, 3, 52, 3))
sketch11.addConstraint(Sketcher.Constraint("Horizontal", 48, 3, 53, 3))
sketch11.addConstraint(Sketcher.Constraint("Horizontal", 49, 3, 54, 3))
sketch11.addConstraint(Sketcher.Constraint("Horizontal", 50, 3, 55, 3))
sketch11.addConstraint(Sketcher.Constraint("Horizontal", 51, 3, 56, 3))
sketch11.addConstraint(Sketcher.Constraint("Horizontal", 52, 3, 57, 3))
sketch11.addConstraint(Sketcher.Constraint("Horizontal", 53, 3, 58, 3))
sketch11.addConstraint(Sketcher.Constraint("Horizontal", 54, 3, 59, 3))
sketch11.addConstraint(Sketcher.Constraint("Horizontal", 55, 3, 60, 3))
sketch11.addConstraint(Sketcher.Constraint("Horizontal", 56, 3, 61, 3))
sketch11.addConstraint(Sketcher.Constraint("Horizontal", 57, 3, 62, 3))
sketch11.addConstraint(Sketcher.Constraint("Horizontal", 58, 3, 63, 3))
sketch11.addConstraint(Sketcher.Constraint("Horizontal", 59, 3, 64, 3))
sketch11.addConstraint(Sketcher.Constraint("Horizontal", 60, 3, 65, 3))
sketch11.addConstraint(Sketcher.Constraint("Horizontal", 61, 3, 66, 3))
sketch11.addConstraint(Sketcher.Constraint("Horizontal", 62, 3, 67, 3))
sketch11.addConstraint(Sketcher.Constraint("Horizontal", 63, 3, 68, 3))
sketch11.addConstraint(Sketcher.Constraint("Horizontal", 64, 3, 69, 3))
sketch11.addConstraint(Sketcher.Constraint("Horizontal", 65, 3, 70, 3))
sketch11.addConstraint(Sketcher.Constraint("Horizontal", 66, 3, 71, 3))
sketch11.addConstraint(Sketcher.Constraint("Vertical", 0, 3, 12, 3))
sketch11.addConstraint(Sketcher.Constraint("Vertical", 12, 3, 13, 3))
sketch11.addConstraint(Sketcher.Constraint("Vertical", 13, 3, 14, 3))
sketch11.addConstraint(Sketcher.Constraint("Vertical", 14, 3, 15, 3))
sketch11.addConstraint(Sketcher.Constraint("Vertical", 15, 3, 16, 3))
sketch11.addConstraint(Sketcher.Constraint("Vertical", 1, 3, 17, 3))
sketch11.addConstraint(Sketcher.Constraint("Vertical", 17, 3, 18, 3))
sketch11.addConstraint(Sketcher.Constraint("Vertical", 18, 3, 19, 3))
sketch11.addConstraint(Sketcher.Constraint("Vertical", 19, 3, 20, 3))
sketch11.addConstraint(Sketcher.Constraint("Vertical", 20, 3, 21, 3))
sketch11.addConstraint(Sketcher.Constraint("Vertical", 2, 3, 22, 3))
sketch11.addConstraint(Sketcher.Constraint("Vertical", 22, 3, 23, 3))
sketch11.addConstraint(Sketcher.Constraint("Vertical", 23, 3, 24, 3))
sketch11.addConstraint(Sketcher.Constraint("Vertical", 24, 3, 25, 3))
sketch11.addConstraint(Sketcher.Constraint("Vertical", 25, 3, 26, 3))
sketch11.addConstraint(Sketcher.Constraint("Vertical", 3, 3, 27, 3))
sketch11.addConstraint(Sketcher.Constraint("Vertical", 27, 3, 28, 3))
sketch11.addConstraint(Sketcher.Constraint("Vertical", 28, 3, 29, 3))
sketch11.addConstraint(Sketcher.Constraint("Vertical", 29, 3, 30, 3))
sketch11.addConstraint(Sketcher.Constraint("Vertical", 30, 3, 31, 3))
sketch11.addConstraint(Sketcher.Constraint("Vertical", 4, 3, 32, 3))
sketch11.addConstraint(Sketcher.Constraint("Vertical", 32, 3, 33, 3))
sketch11.addConstraint(Sketcher.Constraint("Vertical", 33, 3, 34, 3))
sketch11.addConstraint(Sketcher.Constraint("Vertical", 34, 3, 35, 3))
sketch11.addConstraint(Sketcher.Constraint("Vertical", 35, 3, 36, 3))
sketch11.addConstraint(Sketcher.Constraint("Vertical", 5, 3, 37, 3))
sketch11.addConstraint(Sketcher.Constraint("Vertical", 37, 3, 38, 3))
sketch11.addConstraint(Sketcher.Constraint("Vertical", 38, 3, 39, 3))
sketch11.addConstraint(Sketcher.Constraint("Vertical", 39, 3, 40, 3))
sketch11.addConstraint(Sketcher.Constraint("Vertical", 40, 3, 41, 3))
sketch11.addConstraint(Sketcher.Constraint("Vertical", 6, 3, 42, 3))
sketch11.addConstraint(Sketcher.Constraint("Vertical", 42, 3, 43, 3))
sketch11.addConstraint(Sketcher.Constraint("Vertical", 43, 3, 44, 3))
sketch11.addConstraint(Sketcher.Constraint("Vertical", 44, 3, 45, 3))
sketch11.addConstraint(Sketcher.Constraint("Vertical", 45, 3, 46, 3))
sketch11.addConstraint(Sketcher.Constraint("Vertical", 7, 3, 47, 3))
sketch11.addConstraint(Sketcher.Constraint("Vertical", 47, 3, 48, 3))
sketch11.addConstraint(Sketcher.Constraint("Vertical", 48, 3, 49, 3))
sketch11.addConstraint(Sketcher.Constraint("Vertical", 49, 3, 50, 3))
sketch11.addConstraint(Sketcher.Constraint("Vertical", 50, 3, 51, 3))
sketch11.addConstraint(Sketcher.Constraint("Vertical", 8, 3, 52, 3))
sketch11.addConstraint(Sketcher.Constraint("Vertical", 52, 3, 53, 3))
sketch11.addConstraint(Sketcher.Constraint("Vertical", 53, 3, 54, 3))
sketch11.addConstraint(Sketcher.Constraint("Vertical", 54, 3, 55, 3))
sketch11.addConstraint(Sketcher.Constraint("Vertical", 55, 3, 56, 3))
sketch11.addConstraint(Sketcher.Constraint("Vertical", 9, 3, 57, 3))
sketch11.addConstraint(Sketcher.Constraint("Vertical", 57, 3, 58, 3))
sketch11.addConstraint(Sketcher.Constraint("Vertical", 58, 3, 59, 3))
sketch11.addConstraint(Sketcher.Constraint("Vertical", 59, 3, 60, 3))
sketch11.addConstraint(Sketcher.Constraint("Vertical", 60, 3, 61, 3))
sketch11.addConstraint(Sketcher.Constraint("Vertical", 10, 3, 62, 3))
sketch11.addConstraint(Sketcher.Constraint("Vertical", 62, 3, 63, 3))
sketch11.addConstraint(Sketcher.Constraint("Vertical", 63, 3, 64, 3))
sketch11.addConstraint(Sketcher.Constraint("Vertical", 64, 3, 65, 3))
sketch11.addConstraint(Sketcher.Constraint("Vertical", 65, 3, 66, 3))
sketch11.addConstraint(Sketcher.Constraint("Vertical", 11, 3, 67, 3))
sketch11.addConstraint(Sketcher.Constraint("Vertical", 67, 3, 68, 3))
sketch11.addConstraint(Sketcher.Constraint("Vertical", 68, 3, 69, 3))
sketch11.addConstraint(Sketcher.Constraint("Vertical", 69, 3, 70, 3))
sketch11.addConstraint(Sketcher.Constraint("Vertical", 70, 3, 71, 3))
sketch11.addConstraint(Sketcher.Constraint("Diameter", 0, 3.5))
sketch11.addConstraint(Sketcher.Constraint("DistanceX", -1, 1, 0, 3, 4.0))
sketch11.addConstraint(Sketcher.Constraint("DistanceY", -1, 1, 0, 3, 4.0))
sketch11.addConstraint(Sketcher.Constraint("DistanceX", -1, 1, 1, 3, 10.0))
sketch11.addConstraint(Sketcher.Constraint("DistanceX", -1, 1, 2, 3, 16.0))
sketch11.addConstraint(Sketcher.Constraint("DistanceX", -1, 1, 3, 3, 22.0))
sketch11.addConstraint(Sketcher.Constraint("DistanceX", -1, 1, 4, 3, 28.0))
sketch11.addConstraint(Sketcher.Constraint("DistanceX", -1, 1, 5, 3, 34.0))
sketch11.addConstraint(Sketcher.Constraint("DistanceX", -1, 1, 6, 3, 40.0))
sketch11.addConstraint(Sketcher.Constraint("DistanceX", -1, 1, 7, 3, 46.0))
sketch11.addConstraint(Sketcher.Constraint("DistanceX", -1, 1, 8, 3, 52.0))
sketch11.addConstraint(Sketcher.Constraint("DistanceX", -1, 1, 9, 3, 58.0))
sketch11.addConstraint(Sketcher.Constraint("DistanceX", -1, 1, 10, 3, 64.0))
sketch11.addConstraint(Sketcher.Constraint("DistanceX", -1, 1, 11, 3, 70.0))
sketch11.addConstraint(Sketcher.Constraint("DistanceY", -1, 1, 16, 3, 30.0))
sketch11.addConstraint(Sketcher.Constraint("DistanceY", -1, 1, 12, 3, 9.2))
sketch11.addConstraint(Sketcher.Constraint("DistanceY", -1, 1, 13, 3, 14.4))
sketch11.addConstraint(Sketcher.Constraint("DistanceY", -1, 1, 14, 3, 19.6))
sketch11.addConstraint(Sketcher.Constraint("DistanceY", -1, 1, 15, 3, 24.8))
pocket4 = doc.addObject("PartDesign::Pocket", "Pocket003")
body.addObject(pocket4)
pocket4.Profile = sketch11
pocket4.Type = "ThroughAll"

doc.recompute()
